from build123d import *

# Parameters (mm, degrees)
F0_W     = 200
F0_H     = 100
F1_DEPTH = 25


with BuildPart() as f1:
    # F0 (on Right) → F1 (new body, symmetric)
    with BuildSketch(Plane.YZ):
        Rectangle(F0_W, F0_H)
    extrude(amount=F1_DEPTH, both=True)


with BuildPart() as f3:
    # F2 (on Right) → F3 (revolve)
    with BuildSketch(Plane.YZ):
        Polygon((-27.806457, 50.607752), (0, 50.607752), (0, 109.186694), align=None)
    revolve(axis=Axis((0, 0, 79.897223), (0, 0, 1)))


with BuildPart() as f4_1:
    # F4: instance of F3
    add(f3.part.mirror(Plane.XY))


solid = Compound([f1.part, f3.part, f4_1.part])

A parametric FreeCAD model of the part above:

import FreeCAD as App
import Part
import Sketcher

V = App.Vector


def add_polygon(sketch, points):
    """Adds a closed chain of lines whose ends are joined by coincident constraints."""
    first, n = sketch.GeometryCount, len(points)
    for a, b in zip(points, points[1:] + points[:1]):
        sketch.addGeometry(Part.LineSegment(App.Vector(*a, 0), App.Vector(*b, 0)), False)
    for i in range(n):
        sketch.addConstraint(Sketcher.Constraint("Coincident", first + i, 2, first + (i + 1) % n, 1))

doc = App.newDocument("Part")
body = doc.addObject("PartDesign::Body", "Body")

sketch1 = body.newObject("Sketcher::SketchObject", "Sketch")
sketch1.AttachmentSupport = (doc.getObject("YZ_Plane"), [""])
sketch1.MapMode = "FlatFace"
add_polygon(sketch1, [(-100, 50), (-100, -50), (100, -50), (100, 50)])
sketch1.addConstraint([
    Sketcher.Constraint("Vertical", 0),
    Sketcher.Constraint("Horizontal", 1),
    Sketcher.Constraint("Vertical", 2),
    Sketcher.Constraint("Horizontal", 3),
    Sketcher.Constraint("Symmetric", 0, 2, 2, 2, -1, 1),
    Sketcher.Constraint("DistanceX", 1, 1, 1, 2, 200.0),
    Sketcher.Constraint("DistanceY", 0, 2, 0, 1, 100.0),
])
pad1 = body.newObject("PartDesign::Pad", "Pad")
pad1.Profile = sketch1
pad1.Length = 50
pad1.Midplane = True
body2 = doc.addObject("PartDesign::Body", "Body001")

sketch2 = body2.newObject("Sketcher::SketchObject", "Sketch001")
sketch2.AttachmentSupport = (doc.getObject("YZ_Plane001"), [""])
sketch2.MapMode = "FlatFace"
add_polygon(sketch2, [(-28, 51), (0, 51), (0, 109)])
sketch2.addConstraint([
    Sketcher.Constraint("Horizontal", 0),
    Sketcher.Constraint("Vertical", 1),
    Sketcher.Constraint("PointOnObject", 0, 2, -2),
    Sketcher.Constraint("DistanceX", 0, 1, 0, 2, 27.806457),
    Sketcher.Constraint("DistanceY", 1, 1, 1, 2, 58.578942),
    Sketcher.Constraint("DistanceY", -1, 1, 0, 2, 50.607752),
])
revolution = body2.newObject("PartDesign::Revolution", "Revolution")
revolution.Profile = sketch2
revolution.ReferenceAxis = (sketch2, ["V_Axis"])
revolution.Angle = 360
body3 = doc.addObject("PartDesign::Body", "Body002")
doc.recompute()

mirroring = doc.addObject("Part::Mirroring", "Mirroring")
mirroring.Source = body2
mirroring.Base = V(0, 0, 0)
mirroring.Normal = V(0, 0, 1)
body3.BaseFeature = mirroring
doc.recompute()
mirroring.Visibility = False

doc.recompute()
